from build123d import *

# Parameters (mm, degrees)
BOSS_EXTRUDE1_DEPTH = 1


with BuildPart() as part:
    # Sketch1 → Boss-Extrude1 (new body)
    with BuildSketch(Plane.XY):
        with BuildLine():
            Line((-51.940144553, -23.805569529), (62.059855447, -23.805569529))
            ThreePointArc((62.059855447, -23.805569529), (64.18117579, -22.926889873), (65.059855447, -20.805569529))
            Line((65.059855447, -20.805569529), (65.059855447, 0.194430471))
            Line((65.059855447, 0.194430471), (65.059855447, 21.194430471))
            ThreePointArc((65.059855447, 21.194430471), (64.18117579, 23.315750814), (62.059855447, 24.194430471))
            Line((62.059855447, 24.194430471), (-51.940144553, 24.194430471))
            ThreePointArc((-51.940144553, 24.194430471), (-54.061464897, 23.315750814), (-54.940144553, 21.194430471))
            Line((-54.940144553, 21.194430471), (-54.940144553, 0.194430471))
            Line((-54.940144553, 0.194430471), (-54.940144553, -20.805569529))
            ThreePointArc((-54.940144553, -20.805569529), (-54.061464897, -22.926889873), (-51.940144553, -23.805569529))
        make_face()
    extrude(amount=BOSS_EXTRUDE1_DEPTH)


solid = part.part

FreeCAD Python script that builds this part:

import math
import FreeCAD as App
import Part
import Sketcher
from FreeCAD import Vector
Q = App.Units.Quantity

doc = App.newDocument("Part")
params = doc.addObject("Spreadsheet::Sheet", "Params")
for row, (alias, value) in enumerate([
    ("sketch1_radius", "3 mm"),
    ("sketch1_width", "114 mm"),
    ("sketch1_height", "42 mm"),
    ("pad1_length", "1 mm"),
], start=1):
    params.set(f"A{row}", alias)
    params.set(f"B{row}", "=" + value)
    params.setAlias(f"B{row}", alias)

body = doc.addObject("PartDesign::Body", "Body")

# Sketch on XY plane
sketch1 = body.newObject("Sketcher::SketchObject", "Sketch")
sketch1.AttachmentSupport = (doc.getObject("XY_Plane"), [""])
sketch1.MapMode = "FlatFace"
sketch1.addGeometry([
    Part.LineSegment(Vector(-51.9, -23.8, 0), Vector(62.1, -23.8, 0)),  # 0
    Part.ArcOfCircle(Part.Circle(Vector(62.1, -20.8, 0), Vector(0, 0, 1), 3), math.radians(-90), math.radians(0)),  # 1
    Part.LineSegment(Vector(65.1, -20.8, 0), Vector(65.1, 21.2, 0)),  # 2
    Part.ArcOfCircle(Part.Circle(Vector(62.1, 21.2, 0), Vector(0, 0, 1), 3), math.radians(0), math.radians(90)),  # 3
    Part.LineSegment(Vector(62.1, 24.2, 0), Vector(-51.9, 24.2, 0)),  # 4
    Part.ArcOfCircle(Part.Circle(Vector(-51.9, 21.2, 0), Vector(0, 0, 1), 3), math.radians(90), math.radians(180)),  # 5
    Part.LineSegment(Vector(-54.9, 21.2, 0), Vector(-54.9, -20.8, 0)),  # 6
    Part.ArcOfCircle(Part.Circle(Vector(-51.9, -20.8, 0), Vector(0, 0, 1), 3), math.radians(180), math.radians(270)),  # 7
], False)
sketch1.addConstraint([
    Sketcher.Constraint("Tangent", 0, 2, 1, 1),
    Sketcher.Constraint("Tangent", 1, 2, 2, 1),
    Sketcher.Constraint("Tangent", 2, 2, 3, 1),
    Sketcher.Constraint("Tangent", 3, 2, 4, 1),
    Sketcher.Constraint("Tangent", 4, 2, 5, 1),
    Sketcher.Constraint("Tangent", 5, 2, 6, 1),
    Sketcher.Constraint("Tangent", 6, 2, 7, 1),
    Sketcher.Constraint("Tangent", 7, 2, 0, 1),
    Sketcher.Constraint("Horizontal", 0),
    Sketcher.Constraint("Vertical", 2),
    Sketcher.Constraint("Horizontal", 4),
    Sketcher.Constraint("Vertical", 6),
    Sketcher.Constraint("Equal", 1, 3),
    Sketcher.Constraint("Equal", 3, 5),
    Sketcher.Constraint("Equal", 5, 7),
    Sketcher.Constraint("Radius", 1, Q("3 mm")),
    Sketcher.Constraint("DistanceX", 0, 1, 0, 2, Q("114 mm")),
    Sketcher.Constraint("DistanceY", 2, 1, 2, 2, Q("42 mm")),
    Sketcher.Constraint("DistanceY", 1, 3, -1, 1, Q("20.80557 mm")),
    Sketcher.Constraint("DistanceX", -1, 1, 1, 3, Q("62.059855 mm")),
])
sketch1.setExpression("Constraints[15]", "Params.sketch1_radius")
sketch1.setExpression("Constraints[16]", "Params.sketch1_width")
sketch1.setExpression("Constraints[17]", "Params.sketch1_height")
pad1 = body.newObject("PartDesign::Pad", "Pad")
pad1.Profile = sketch1
pad1.setExpression("Length", "Params.pad1_length")

doc.recompute()
